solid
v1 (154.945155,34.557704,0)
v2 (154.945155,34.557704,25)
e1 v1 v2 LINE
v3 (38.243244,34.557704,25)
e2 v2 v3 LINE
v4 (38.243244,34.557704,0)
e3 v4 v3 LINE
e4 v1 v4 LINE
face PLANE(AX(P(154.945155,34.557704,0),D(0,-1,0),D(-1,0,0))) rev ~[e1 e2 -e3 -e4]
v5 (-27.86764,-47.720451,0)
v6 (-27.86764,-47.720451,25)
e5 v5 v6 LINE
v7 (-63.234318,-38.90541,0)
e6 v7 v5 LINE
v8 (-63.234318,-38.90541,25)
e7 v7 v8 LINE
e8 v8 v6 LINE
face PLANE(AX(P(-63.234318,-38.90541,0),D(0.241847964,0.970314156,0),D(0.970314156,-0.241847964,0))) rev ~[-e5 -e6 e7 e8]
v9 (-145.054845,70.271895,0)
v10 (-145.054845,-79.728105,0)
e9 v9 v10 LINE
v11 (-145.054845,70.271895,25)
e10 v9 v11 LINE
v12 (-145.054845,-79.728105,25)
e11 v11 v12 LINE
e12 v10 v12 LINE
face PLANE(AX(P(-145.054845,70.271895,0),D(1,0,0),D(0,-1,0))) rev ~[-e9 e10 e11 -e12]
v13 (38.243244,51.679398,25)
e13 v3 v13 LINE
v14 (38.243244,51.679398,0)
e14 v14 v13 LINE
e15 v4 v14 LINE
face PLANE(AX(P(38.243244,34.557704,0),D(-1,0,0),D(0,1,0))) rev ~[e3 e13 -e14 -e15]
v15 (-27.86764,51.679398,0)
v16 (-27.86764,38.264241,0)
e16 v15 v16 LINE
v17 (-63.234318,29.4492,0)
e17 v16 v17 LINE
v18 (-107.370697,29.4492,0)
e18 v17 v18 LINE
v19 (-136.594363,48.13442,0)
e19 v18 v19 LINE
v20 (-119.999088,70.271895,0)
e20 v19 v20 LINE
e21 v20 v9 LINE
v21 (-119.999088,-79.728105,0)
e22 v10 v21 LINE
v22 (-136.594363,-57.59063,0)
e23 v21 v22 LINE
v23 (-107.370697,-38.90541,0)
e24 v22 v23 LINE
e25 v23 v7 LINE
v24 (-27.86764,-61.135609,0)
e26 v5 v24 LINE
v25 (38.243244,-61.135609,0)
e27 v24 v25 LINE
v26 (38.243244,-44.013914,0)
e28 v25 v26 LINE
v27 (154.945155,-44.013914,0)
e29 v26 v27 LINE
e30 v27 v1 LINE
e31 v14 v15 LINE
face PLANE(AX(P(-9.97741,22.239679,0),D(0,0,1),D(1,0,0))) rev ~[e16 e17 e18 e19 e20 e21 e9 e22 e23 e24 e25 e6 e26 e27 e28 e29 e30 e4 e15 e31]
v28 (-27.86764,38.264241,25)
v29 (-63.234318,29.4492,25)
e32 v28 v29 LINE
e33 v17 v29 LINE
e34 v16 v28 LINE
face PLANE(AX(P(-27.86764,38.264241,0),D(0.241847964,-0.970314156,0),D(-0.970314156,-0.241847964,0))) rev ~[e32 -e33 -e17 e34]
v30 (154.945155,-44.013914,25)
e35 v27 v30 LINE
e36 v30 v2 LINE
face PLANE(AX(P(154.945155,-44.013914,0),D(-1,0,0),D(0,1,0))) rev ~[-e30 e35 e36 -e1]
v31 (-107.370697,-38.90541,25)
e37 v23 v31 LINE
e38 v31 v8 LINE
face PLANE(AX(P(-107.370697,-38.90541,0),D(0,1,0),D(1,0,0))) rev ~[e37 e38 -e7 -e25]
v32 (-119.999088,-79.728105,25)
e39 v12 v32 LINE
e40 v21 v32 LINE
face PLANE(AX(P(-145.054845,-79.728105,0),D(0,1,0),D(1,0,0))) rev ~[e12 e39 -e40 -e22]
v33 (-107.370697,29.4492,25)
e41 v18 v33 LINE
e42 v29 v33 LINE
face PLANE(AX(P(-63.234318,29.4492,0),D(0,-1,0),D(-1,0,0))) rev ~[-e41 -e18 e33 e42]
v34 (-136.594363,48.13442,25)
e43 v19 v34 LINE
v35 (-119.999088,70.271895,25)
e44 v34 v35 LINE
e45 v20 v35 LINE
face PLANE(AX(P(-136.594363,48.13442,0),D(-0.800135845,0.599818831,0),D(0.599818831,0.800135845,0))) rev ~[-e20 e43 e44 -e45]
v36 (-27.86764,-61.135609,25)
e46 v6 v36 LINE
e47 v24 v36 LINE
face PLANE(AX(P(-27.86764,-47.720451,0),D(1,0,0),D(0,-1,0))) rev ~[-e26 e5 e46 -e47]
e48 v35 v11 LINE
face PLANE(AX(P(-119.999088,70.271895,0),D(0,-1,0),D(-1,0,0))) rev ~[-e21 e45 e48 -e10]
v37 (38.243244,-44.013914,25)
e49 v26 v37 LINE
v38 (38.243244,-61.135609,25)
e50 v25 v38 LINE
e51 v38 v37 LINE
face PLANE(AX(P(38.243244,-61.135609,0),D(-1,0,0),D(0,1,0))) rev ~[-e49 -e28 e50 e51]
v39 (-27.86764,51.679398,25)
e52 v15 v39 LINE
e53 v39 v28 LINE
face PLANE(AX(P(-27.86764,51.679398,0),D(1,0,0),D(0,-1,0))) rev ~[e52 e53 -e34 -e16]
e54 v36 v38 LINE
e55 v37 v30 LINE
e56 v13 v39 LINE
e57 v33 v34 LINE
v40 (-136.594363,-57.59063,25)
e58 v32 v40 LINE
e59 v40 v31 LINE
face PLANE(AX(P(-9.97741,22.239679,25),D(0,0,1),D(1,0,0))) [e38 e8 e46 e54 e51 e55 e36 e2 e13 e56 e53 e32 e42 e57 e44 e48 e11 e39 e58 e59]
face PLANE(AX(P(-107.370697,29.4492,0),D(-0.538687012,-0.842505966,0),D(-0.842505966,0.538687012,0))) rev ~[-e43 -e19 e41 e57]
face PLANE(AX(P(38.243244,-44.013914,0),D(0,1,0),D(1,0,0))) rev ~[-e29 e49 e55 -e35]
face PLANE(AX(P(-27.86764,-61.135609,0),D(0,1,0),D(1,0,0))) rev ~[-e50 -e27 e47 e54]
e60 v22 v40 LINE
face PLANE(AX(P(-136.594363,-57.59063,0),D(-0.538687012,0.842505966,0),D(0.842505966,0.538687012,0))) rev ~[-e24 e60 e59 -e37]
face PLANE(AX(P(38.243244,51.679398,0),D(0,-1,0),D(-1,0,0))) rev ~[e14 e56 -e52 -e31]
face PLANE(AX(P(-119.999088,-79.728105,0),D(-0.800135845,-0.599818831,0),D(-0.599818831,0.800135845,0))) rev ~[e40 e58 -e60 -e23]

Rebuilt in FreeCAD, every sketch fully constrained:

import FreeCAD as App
import Part
import Sketcher

doc = App.newDocument("Part")
body = doc.addObject("PartDesign::Body", "Body")

sketch1 = body.newObject("Sketcher::SketchObject", "Sketch")
sketch1.AttachmentSupport = (doc.getObject("XY_Plane"), [""])
sketch1.MapMode = "FlatFace"
sketch1.addGeometry([
    Part.LineSegment(App.Vector(-120, 70, 0), App.Vector(-145, 70, 0)),
    Part.LineSegment(App.Vector(-145, 70, 0), App.Vector(-145, -80, 0)),
    Part.LineSegment(App.Vector(-145, -80, 0), App.Vector(-120, -80, 0)),
    Part.LineSegment(App.Vector(-120, -80, 0), App.Vector(-137, -58, 0)),
    Part.LineSegment(App.Vector(-137, -58, 0), App.Vector(-107, -39, 0)),
    Part.LineSegment(App.Vector(-107, -39, 0), App.Vector(-63, -39, 0)),
    Part.LineSegment(App.Vector(-63, -39, 0), App.Vector(-28, -48, 0)),
    Part.LineSegment(App.Vector(-28, -48, 0), App.Vector(-28, -61, 0)),
    Part.LineSegment(App.Vector(-28, -61, 0), App.Vector(38, -61, 0)),
    Part.LineSegment(App.Vector(38, -61, 0), App.Vector(38, -44, 0)),
    Part.LineSegment(App.Vector(38, -44, 0), App.Vector(155, -44, 0)),
    Part.LineSegment(App.Vector(155, -44, 0), App.Vector(155, 35, 0)),
    Part.LineSegment(App.Vector(155, 35, 0), App.Vector(38, 35, 0)),
    Part.LineSegment(App.Vector(38, 35, 0), App.Vector(38, 52, 0)),
    Part.LineSegment(App.Vector(38, 52, 0), App.Vector(-28, 52, 0)),
    Part.LineSegment(App.Vector(-28, 52, 0), App.Vector(-28, 38, 0)),
    Part.LineSegment(App.Vector(-28, 38, 0), App.Vector(-63, 29, 0)),
    Part.LineSegment(App.Vector(-63, 29, 0), App.Vector(-107, 29, 0)),
    Part.LineSegment(App.Vector(-107, 29, 0), App.Vector(-137, 48, 0)),
    Part.LineSegment(App.Vector(-137, 48, 0), App.Vector(-120, 70, 0)),
], False)
sketch1.addConstraint([
    Sketcher.Constraint("Coincident", 0, 2, 1, 1),
    Sketcher.Constraint("Coincident", 1, 2, 2, 1),
    Sketcher.Constraint("Coincident", 2, 2, 3, 1),
    Sketcher.Constraint("Coincident", 3, 2, 4, 1),
    Sketcher.Constraint("Coincident", 4, 2, 5, 1),
    Sketcher.Constraint("Coincident", 5, 2, 6, 1),
    Sketcher.Constraint("Coincident", 6, 2, 7, 1),
    Sketcher.Constraint("Coincident", 7, 2, 8, 1),
    Sketcher.Constraint("Coincident", 8, 2, 9, 1),
    Sketcher.Constraint("Coincident", 9, 2, 10, 1),
    Sketcher.Constraint("Coincident", 10, 2, 11, 1),
    Sketcher.Constraint("Coincident", 11, 2, 12, 1),
    Sketcher.Constraint("Coincident", 12, 2, 13, 1),
    Sketcher.Constraint("Coincident", 13, 2, 14, 1),
    Sketcher.Constraint("Coincident", 14, 2, 15, 1),
    Sketcher.Constraint("Coincident", 15, 2, 16, 1),
    Sketcher.Constraint("Coincident", 16, 2, 17, 1),
    Sketcher.Constraint("Coincident", 17, 2, 18, 1),
    Sketcher.Constraint("Coincident", 18, 2, 19, 1),
    Sketcher.Constraint("Coincident", 19, 2, 0, 1),
    Sketcher.Constraint("Horizontal", 0),
    Sketcher.Constraint("Vertical", 1),
    Sketcher.Constraint("Horizontal", 2),
    Sketcher.Constraint("Horizontal", 5),
    Sketcher.Constraint("Vertical", 7),
    Sketcher.Constraint("Horizontal", 8),
    Sketcher.Constraint("Vertical", 9),
    Sketcher.Constraint("Horizontal", 10),
    Sketcher.Constraint("Vertical", 11),
    Sketcher.Constraint("Horizontal", 12),
    Sketcher.Constraint("Vertical", 13),
    Sketcher.Constraint("Horizontal", 14),
    Sketcher.Constraint("Vertical", 15),
    Sketcher.Constraint("Horizontal", 17),
    Sketcher.Constraint("Vertical", 9, 2, 12, 2),
    Sketcher.Constraint("Vertical", 7, 2, 14, 2),
    Sketcher.Constraint("Vertical", 5, 2, 16, 2),
    Sketcher.Constraint("Vertical", 4, 2, 17, 2),
    Sketcher.Constraint("Vertical", 3, 2, 18, 2),
    Sketcher.Constraint("Vertical", 2, 2, 19, 2),
    Sketcher.Constraint("Equal", 9, 13),
    Sketcher.Constraint("Equal", 7, 15),
    Sketcher.Constraint("Equal", 6, 16),
    Sketcher.Constraint("Equal", 4, 18),
    Sketcher.Constraint("Equal", 3, 19),
    Sketcher.Constraint("DistanceY", 1, 2, 1, 1, 150.0),
    Sketcher.Constraint("Distance", 4, 34.686598),
    Sketcher.Constraint("DistanceX", 5, 1, 5, 2, 44.136379),
    Sketcher.Constraint("DistanceX", 10, 1, 10, 2, 116.701911),
    Sketcher.Constraint("DistanceY", 7, 2, 7, 1, 13.415158),
    Sketcher.Constraint("DistanceY", 11, 1, 11, 2, 78.571618),
    Sketcher.Constraint("DistanceY", -1, 1, 16, 2, 29.4492),
    Sketcher.Constraint("DistanceY", 7, 2, 5, 2, 22.230199),
    Sketcher.Constraint("Distance", 6, 36.448688),
    Sketcher.Constraint("DistanceX", 0, 2, 0, 1, 25.055757),
    Sketcher.Constraint("DistanceX", 8, 1, 8, 2, 66.110884),
    Sketcher.Constraint("DistanceY", 9, 1, 9, 2, 17.121695),
    Sketcher.Constraint("DistanceX", 2, 2, -1, 1, 119.999088),
    Sketcher.Constraint("DistanceY", 3, 2, -1, 1, 57.59063),
    Sketcher.Constraint("DistanceX", 5, 2, -1, 1, 63.234318),
])
pad1 = body.newObject("PartDesign::Pad", "Pad")
pad1.Profile = sketch1
pad1.Length = 25

doc.recompute()
